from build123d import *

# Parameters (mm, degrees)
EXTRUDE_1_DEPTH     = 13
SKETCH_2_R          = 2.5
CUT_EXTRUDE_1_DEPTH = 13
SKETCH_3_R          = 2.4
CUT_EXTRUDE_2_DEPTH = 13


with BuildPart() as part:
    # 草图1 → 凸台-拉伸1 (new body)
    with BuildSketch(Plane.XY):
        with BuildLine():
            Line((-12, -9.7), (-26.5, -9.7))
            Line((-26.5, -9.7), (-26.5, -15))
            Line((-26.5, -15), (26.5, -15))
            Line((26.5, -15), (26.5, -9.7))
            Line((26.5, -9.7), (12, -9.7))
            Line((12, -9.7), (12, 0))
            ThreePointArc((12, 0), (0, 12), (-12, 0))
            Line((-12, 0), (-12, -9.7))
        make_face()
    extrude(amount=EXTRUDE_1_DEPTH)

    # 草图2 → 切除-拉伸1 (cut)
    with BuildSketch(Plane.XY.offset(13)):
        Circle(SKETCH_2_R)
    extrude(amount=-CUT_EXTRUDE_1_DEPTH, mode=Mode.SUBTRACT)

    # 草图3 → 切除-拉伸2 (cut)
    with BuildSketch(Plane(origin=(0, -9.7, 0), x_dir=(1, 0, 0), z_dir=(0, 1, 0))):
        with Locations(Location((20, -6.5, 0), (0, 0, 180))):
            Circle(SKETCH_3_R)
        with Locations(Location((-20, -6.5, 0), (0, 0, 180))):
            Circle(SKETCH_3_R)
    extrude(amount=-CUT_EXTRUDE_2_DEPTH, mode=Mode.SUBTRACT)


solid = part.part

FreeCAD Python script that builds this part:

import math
import FreeCAD as App
import Part
import Sketcher

V = App.Vector

doc = App.newDocument("Part")
body = doc.addObject("PartDesign::Body", "Body")

# Sketch on XY plane
sketch1 = doc.addObject("Sketcher::SketchObject", "Sketch")
body.addObject(sketch1)
sketch1.AttachmentSupport = (doc.XY_Plane, [""])
sketch1.MapMode = "FlatFace"
sketch1.addGeometry(Part.LineSegment(V(-12, -10, 0), V(-26, -10, 0)), False)
sketch1.addGeometry(Part.LineSegment(V(-26, -10, 0), V(-26, -15, 0)), False)
sketch1.addGeometry(Part.LineSegment(V(-26, -15, 0), V(26, -15, 0)), False)
sketch1.addGeometry(Part.LineSegment(V(26, -15, 0), V(26, -10, 0)), False)
sketch1.addGeometry(Part.LineSegment(V(26, -10, 0), V(12, -10, 0)), False)
sketch1.addGeometry(Part.LineSegment(V(12, -10, 0), V(12, 0, 0)), False)
sketch1.addGeometry(Part.ArcOfCircle(Part.Circle(V(0, 0, 0), V(0, 0, 1), 12), math.radians(0), math.radians(180)), False)
sketch1.addGeometry(Part.LineSegment(V(-12, 0, 0), V(-12, -10, 0)), False)
sketch1.addConstraint(Sketcher.Constraint("Coincident", 0, 2, 1, 1))
sketch1.addConstraint(Sketcher.Constraint("Coincident", 1, 2, 2, 1))
sketch1.addConstraint(Sketcher.Constraint("Coincident", 2, 2, 3, 1))
sketch1.addConstraint(Sketcher.Constraint("Coincident", 3, 2, 4, 1))
sketch1.addConstraint(Sketcher.Constraint("Coincident", 4, 2, 5, 1))
sketch1.addConstraint(Sketcher.Constraint("Tangent", 5, 2, 6, 1))
sketch1.addConstraint(Sketcher.Constraint("Tangent", 6, 2, 7, 1))
sketch1.addConstraint(Sketcher.Constraint("Coincident", 7, 2, 0, 1))
sketch1.addConstraint(Sketcher.Constraint("Horizontal", 0))
sketch1.addConstraint(Sketcher.Constraint("Vertical", 1))
sketch1.addConstraint(Sketcher.Constraint("Horizontal", 2))
sketch1.addConstraint(Sketcher.Constraint("Vertical", 3))
sketch1.addConstraint(Sketcher.Constraint("Horizontal", 4))
sketch1.addConstraint(Sketcher.Constraint("Vertical", 5))
sketch1.addConstraint(Sketcher.Constraint("Vertical", 7))
sketch1.addConstraint(Sketcher.Constraint("Coincident", 6, 3, -1, 1))
sketch1.addConstraint(Sketcher.Constraint("Symmetric", 0, 2, 3, 2, -2))
sketch1.addConstraint(Sketcher.Constraint("Radius", 6, 12.0))
sketch1.addConstraint(Sketcher.Constraint("DistanceX", 2, 1, 2, 2, 53.0))
sketch1.addConstraint(Sketcher.Constraint("DistanceY", 1, 2, 1, 1, 5.3))
sketch1.addConstraint(Sketcher.Constraint("DistanceY", 5, 1, 5, 2, 9.7))
pad1 = doc.addObject("PartDesign::Pad", "Pad")
body.addObject(pad1)
pad1.Profile = sketch1
pad1.Length = 13

# Sketch on XY plane
sketch2 = doc.addObject("Sketcher::SketchObject", "Sketch001")
body.addObject(sketch2)
sketch2.AttachmentSupport = (doc.XY_Plane, [""])
sketch2.MapMode = "FlatFace"
sketch2.AttachmentOffset = App.Placement(V(0, 0, 13), App.Rotation())
sketch2.addGeometry(Part.Circle(V(0, 0, 0), V(0, 0, 1), 2.5), False)
sketch2.addConstraint(Sketcher.Constraint("Coincident", 0, 3, -1, 1))
sketch2.addConstraint(Sketcher.Constraint("Diameter", 0, 5.0))
pocket1 = doc.addObject("PartDesign::Pocket", "Pocket")
body.addObject(pocket1)
pocket1.Profile = sketch2
pocket1.Length = 13

# Sketch on XZ plane
sketch3 = doc.addObject("Sketcher::SketchObject", "Sketch002")
body.addObject(sketch3)
sketch3.AttachmentSupport = (doc.XZ_Plane, [""])
sketch3.MapMode = "FlatFace"
sketch3.AttachmentOffset = App.Placement(V(0, 0, 9.7), App.Rotation())
sketch3.addGeometry(Part.Circle(V(20, 6.5, 0), V(0, 0, 1), 2.4), False)
sketch3.addGeometry(Part.Circle(V(-20, 6.5, 0), V(0, 0, 1), 2.4), False)
sketch3.addConstraint(Sketcher.Constraint("Equal", 0, 1))
sketch3.addConstraint(Sketcher.Constraint("Symmetric", 0, 3, 1, 3, -2))
sketch3.addConstraint(Sketcher.Constraint("Diameter", 0, 4.8))
sketch3.addConstraint(Sketcher.Constraint("DistanceX", -1, 1, 0, 3, 20.0))
sketch3.addConstraint(Sketcher.Constraint("DistanceY", -1, 1, 0, 3, 6.5))
pocket2 = doc.addObject("PartDesign::Pocket", "Pocket001")
body.addObject(pocket2)
pocket2.Profile = sketch3
pocket2.Length = 13
pocket2.Reversed = True

doc.recompute()
